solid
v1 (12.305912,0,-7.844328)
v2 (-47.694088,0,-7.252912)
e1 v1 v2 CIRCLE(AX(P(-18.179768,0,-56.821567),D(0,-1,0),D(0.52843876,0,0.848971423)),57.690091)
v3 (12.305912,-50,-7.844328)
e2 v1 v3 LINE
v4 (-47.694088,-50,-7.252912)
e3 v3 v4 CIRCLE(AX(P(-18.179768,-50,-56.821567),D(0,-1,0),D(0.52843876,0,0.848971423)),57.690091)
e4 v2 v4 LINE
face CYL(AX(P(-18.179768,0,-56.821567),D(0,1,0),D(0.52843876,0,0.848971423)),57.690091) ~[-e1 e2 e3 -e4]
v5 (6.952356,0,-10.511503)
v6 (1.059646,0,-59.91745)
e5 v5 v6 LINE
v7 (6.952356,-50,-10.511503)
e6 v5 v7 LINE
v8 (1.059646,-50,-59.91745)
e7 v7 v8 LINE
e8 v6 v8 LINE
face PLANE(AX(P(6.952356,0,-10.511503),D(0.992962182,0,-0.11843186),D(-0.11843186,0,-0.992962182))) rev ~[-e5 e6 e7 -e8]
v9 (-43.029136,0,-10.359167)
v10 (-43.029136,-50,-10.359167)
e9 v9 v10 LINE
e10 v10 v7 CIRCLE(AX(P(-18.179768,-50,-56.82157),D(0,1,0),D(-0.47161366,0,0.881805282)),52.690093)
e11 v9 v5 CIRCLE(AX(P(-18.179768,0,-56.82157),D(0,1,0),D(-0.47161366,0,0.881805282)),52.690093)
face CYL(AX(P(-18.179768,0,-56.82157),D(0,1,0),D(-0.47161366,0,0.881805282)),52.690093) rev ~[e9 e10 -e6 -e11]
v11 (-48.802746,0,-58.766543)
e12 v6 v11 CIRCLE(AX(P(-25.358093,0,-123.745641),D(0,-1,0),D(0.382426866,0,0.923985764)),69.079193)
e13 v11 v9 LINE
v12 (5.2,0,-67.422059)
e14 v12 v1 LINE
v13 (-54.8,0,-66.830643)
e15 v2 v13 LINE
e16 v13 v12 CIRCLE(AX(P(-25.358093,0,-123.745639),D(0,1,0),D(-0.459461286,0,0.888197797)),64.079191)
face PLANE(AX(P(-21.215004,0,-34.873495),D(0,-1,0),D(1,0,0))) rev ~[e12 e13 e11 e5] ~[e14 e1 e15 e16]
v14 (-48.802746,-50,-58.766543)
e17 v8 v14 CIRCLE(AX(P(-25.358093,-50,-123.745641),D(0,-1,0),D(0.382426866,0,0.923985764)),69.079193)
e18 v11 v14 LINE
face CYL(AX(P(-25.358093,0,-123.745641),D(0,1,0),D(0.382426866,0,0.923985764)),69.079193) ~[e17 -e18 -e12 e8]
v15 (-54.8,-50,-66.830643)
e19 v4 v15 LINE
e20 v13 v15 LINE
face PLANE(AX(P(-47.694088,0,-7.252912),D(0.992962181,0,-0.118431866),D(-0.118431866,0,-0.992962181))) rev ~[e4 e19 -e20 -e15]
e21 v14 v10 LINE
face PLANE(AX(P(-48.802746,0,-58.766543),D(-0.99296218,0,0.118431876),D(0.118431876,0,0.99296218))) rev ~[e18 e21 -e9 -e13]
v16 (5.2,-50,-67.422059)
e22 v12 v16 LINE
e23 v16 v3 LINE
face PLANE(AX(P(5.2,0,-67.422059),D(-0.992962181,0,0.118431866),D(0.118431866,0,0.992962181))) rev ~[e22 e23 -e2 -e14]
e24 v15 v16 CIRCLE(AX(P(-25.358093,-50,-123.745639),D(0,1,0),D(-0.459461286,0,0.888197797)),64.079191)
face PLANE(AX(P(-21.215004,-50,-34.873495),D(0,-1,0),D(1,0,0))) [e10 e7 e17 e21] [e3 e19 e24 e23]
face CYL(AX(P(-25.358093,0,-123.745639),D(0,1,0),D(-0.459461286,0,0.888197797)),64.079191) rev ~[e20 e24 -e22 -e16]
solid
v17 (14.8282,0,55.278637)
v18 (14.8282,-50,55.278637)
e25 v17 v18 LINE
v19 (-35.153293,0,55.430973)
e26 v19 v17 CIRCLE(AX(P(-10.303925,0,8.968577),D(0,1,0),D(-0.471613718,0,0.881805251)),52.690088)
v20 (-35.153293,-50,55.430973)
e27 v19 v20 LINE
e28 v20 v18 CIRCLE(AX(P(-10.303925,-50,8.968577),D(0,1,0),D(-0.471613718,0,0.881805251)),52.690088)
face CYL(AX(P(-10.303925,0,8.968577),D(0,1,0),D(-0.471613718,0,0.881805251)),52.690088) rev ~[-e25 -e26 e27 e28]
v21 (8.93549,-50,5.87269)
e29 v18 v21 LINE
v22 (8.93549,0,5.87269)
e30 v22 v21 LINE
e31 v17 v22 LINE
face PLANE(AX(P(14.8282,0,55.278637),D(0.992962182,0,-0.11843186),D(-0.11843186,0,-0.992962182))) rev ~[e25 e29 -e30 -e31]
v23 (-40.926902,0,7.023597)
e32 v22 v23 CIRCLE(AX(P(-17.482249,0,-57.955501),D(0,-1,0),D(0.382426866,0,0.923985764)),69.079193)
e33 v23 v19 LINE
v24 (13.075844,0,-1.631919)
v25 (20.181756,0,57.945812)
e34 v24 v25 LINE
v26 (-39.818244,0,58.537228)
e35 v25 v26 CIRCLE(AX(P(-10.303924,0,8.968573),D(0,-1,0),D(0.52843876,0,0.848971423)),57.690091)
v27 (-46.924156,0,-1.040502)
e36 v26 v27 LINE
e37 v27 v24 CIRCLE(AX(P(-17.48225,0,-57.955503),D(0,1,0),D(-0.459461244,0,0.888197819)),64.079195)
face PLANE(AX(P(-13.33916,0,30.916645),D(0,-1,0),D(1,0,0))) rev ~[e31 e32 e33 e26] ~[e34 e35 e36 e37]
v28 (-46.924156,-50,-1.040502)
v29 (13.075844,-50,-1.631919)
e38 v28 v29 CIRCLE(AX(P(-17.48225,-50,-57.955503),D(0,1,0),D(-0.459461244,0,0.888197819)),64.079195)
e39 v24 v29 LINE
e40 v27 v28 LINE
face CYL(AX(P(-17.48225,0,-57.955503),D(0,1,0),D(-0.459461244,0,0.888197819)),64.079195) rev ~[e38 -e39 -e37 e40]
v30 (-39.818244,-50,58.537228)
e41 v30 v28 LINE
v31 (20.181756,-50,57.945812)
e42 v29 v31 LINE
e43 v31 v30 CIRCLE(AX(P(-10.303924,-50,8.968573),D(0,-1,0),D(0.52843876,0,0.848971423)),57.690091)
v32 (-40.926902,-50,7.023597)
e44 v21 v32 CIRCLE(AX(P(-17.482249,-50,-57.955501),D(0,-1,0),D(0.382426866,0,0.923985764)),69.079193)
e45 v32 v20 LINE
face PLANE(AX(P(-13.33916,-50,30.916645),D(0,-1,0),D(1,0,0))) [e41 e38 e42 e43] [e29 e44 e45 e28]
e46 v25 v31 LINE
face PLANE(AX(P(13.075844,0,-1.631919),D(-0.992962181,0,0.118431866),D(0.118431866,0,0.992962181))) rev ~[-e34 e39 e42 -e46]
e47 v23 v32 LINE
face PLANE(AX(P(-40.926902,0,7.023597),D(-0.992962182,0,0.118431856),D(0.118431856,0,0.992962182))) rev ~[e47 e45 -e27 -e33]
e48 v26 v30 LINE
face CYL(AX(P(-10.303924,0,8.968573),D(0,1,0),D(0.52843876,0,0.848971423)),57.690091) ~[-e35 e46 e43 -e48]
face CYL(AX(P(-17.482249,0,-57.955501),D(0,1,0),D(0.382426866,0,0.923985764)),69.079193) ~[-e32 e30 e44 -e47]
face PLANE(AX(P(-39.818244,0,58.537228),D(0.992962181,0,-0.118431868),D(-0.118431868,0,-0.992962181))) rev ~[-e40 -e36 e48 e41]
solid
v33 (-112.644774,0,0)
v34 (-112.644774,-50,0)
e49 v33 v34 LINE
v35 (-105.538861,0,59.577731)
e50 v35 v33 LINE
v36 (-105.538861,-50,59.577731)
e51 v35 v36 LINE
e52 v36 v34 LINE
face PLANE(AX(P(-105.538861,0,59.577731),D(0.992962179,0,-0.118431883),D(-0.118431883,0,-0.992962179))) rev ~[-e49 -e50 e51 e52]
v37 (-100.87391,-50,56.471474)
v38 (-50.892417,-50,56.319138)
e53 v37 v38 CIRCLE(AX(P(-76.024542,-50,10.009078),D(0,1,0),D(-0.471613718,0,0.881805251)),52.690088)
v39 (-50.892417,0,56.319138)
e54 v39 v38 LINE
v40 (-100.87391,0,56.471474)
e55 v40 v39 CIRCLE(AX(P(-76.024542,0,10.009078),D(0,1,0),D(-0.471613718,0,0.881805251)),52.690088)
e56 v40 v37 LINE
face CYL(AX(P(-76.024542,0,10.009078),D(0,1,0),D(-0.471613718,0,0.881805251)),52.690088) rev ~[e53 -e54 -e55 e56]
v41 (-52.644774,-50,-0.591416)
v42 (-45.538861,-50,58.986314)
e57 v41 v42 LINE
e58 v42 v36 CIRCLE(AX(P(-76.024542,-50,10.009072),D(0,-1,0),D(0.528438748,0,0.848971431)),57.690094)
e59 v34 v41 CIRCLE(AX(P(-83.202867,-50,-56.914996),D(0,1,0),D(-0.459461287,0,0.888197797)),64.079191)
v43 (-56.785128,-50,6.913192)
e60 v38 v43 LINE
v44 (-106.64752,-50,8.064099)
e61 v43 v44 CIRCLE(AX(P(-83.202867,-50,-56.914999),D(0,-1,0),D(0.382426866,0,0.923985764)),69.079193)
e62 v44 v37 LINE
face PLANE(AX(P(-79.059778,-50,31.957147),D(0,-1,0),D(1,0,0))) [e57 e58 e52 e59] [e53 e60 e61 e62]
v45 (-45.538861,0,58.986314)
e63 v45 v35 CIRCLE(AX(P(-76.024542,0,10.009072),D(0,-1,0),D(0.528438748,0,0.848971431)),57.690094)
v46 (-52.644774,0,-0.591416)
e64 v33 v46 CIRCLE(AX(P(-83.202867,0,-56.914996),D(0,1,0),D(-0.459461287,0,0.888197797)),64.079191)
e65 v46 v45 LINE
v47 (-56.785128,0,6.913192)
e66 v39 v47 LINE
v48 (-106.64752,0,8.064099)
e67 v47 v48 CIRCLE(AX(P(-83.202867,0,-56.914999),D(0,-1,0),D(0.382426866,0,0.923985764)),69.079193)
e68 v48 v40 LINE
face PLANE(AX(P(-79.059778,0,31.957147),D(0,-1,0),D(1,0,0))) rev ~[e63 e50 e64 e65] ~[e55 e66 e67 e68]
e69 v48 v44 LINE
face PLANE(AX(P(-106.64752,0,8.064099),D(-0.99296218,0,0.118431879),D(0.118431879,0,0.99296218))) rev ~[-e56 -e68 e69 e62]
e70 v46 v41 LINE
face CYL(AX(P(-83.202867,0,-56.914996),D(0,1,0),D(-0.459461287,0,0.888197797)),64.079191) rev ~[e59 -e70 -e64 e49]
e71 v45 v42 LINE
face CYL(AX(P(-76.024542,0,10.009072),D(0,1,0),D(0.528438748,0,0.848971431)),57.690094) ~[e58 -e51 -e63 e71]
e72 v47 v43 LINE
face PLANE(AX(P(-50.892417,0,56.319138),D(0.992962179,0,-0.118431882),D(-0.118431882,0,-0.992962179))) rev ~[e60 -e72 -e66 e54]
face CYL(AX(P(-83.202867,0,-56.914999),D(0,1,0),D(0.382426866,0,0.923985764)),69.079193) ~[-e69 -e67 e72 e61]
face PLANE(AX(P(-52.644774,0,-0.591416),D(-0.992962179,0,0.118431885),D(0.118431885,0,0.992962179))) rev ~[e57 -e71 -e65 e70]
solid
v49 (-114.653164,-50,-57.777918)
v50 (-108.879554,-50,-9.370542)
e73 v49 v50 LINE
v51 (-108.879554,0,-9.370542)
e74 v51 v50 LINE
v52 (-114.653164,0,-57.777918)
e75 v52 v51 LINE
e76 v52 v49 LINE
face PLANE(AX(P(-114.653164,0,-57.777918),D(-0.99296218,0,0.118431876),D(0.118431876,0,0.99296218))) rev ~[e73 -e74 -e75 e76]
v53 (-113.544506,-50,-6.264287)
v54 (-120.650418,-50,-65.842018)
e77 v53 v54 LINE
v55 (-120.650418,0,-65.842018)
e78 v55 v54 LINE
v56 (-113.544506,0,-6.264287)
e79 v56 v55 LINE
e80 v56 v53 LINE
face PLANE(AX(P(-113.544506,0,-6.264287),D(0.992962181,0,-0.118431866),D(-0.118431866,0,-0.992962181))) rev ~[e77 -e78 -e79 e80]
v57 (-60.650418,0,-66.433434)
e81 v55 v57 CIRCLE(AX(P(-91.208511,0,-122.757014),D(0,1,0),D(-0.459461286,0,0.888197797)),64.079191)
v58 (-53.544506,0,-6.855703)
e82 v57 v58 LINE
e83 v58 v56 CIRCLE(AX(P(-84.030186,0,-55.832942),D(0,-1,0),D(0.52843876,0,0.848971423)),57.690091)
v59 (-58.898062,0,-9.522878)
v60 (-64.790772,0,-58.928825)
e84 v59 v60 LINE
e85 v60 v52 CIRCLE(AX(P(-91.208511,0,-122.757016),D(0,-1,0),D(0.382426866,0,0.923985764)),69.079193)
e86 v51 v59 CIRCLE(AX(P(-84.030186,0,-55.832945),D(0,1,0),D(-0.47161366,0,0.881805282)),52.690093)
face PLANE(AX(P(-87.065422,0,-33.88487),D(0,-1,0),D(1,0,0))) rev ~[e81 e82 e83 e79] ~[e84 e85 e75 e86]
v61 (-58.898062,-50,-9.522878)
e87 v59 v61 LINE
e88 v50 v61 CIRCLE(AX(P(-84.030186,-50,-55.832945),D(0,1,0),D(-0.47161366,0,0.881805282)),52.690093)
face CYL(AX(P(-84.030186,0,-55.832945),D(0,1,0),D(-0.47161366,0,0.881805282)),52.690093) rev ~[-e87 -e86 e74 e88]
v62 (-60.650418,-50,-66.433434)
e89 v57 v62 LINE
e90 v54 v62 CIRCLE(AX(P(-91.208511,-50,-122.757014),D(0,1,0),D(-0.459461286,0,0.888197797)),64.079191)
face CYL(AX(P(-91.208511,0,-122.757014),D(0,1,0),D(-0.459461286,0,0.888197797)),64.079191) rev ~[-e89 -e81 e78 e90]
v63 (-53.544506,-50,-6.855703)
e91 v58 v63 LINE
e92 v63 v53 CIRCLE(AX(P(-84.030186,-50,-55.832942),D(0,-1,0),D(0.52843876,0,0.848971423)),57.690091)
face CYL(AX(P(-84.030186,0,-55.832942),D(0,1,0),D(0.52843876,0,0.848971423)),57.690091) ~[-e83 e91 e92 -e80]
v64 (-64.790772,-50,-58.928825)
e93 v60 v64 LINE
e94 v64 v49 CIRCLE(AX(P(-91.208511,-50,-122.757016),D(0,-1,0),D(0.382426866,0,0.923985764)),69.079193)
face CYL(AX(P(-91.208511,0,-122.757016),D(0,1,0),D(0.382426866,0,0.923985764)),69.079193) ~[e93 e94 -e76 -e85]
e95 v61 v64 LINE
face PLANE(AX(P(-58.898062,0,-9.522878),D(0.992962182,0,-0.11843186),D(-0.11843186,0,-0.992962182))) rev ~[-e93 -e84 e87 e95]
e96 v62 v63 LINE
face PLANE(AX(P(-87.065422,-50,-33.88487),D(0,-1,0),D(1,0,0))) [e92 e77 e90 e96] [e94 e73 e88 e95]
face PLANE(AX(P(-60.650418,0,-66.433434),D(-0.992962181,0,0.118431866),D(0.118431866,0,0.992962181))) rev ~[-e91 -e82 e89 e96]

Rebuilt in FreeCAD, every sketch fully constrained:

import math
import FreeCAD as App
import Part
import Sketcher
from FreeCAD import Vector

doc = App.newDocument("Part")
body = doc.addObject("PartDesign::Body", "Body")
body.AllowCompound = True

# Sketch on XZ plane
sketch1 = body.newObject("Sketcher::SketchObject", "Sketch")
sketch1.AttachmentSupport = (doc.getObject("XZ_Plane"), [""])
sketch1.MapMode = "FlatFace"
sketch1.addGeometry([
    Part.LineSegment(Vector(-105.538861, 59.577731, 0), Vector(-112.644774, 0, 0)),  # 0
    Part.ArcOfCircle(Part.Circle(Vector(-83.202867, -56.914996, 0), Vector(0, 0, 1), 64.079191), math.radians(61.518164), math.radians(117.352351)),  # 1
    Part.LineSegment(Vector(-52.644774, -0.591416, 0), Vector(-45.538861, 58.986314, 0)),  # 2
    Part.ArcOfCircle(Part.Circle(Vector(-76.024542, 10.009072, 0), Vector(0, 0, 1), 57.690094), math.radians(58.099972), math.radians(120.770541)),  # 3
    Part.LineSegment(Vector(-106.64752, 8.064099, 0), Vector(-100.87391, 56.471474, 0)),  # 4
    Part.ArcOfCircle(Part.Circle(Vector(-76.024542, 10.009078, 0), Vector(0, 0, 1), 52.690088), math.radians(61.511646), math.radians(118.139098)),  # 5
    Part.LineSegment(Vector(-50.892417, 56.319138, 0), Vector(-56.785128, 6.913192, 0)),  # 6
    Part.ArcOfCircle(Part.Circle(Vector(-83.202867, -56.914999, 0), Vector(0, 0, 1), 69.079193), math.radians(67.51591), math.radians(109.839595)),  # 7
    Part.LineSegment(Vector(-39.818244, 58.537228, 0), Vector(-46.924156, -1.040502, 0)),  # 8
    Part.ArcOfCircle(Part.Circle(Vector(-17.48225, -57.955503, 0), Vector(0, 0, 1), 64.079195), math.radians(61.518165), math.radians(117.352348)),  # 9
    Part.LineSegment(Vector(13.075844, -1.631919, 0), Vector(20.181756, 57.945812, 0)),  # 10
    Part.ArcOfCircle(Part.Circle(Vector(-10.303924, 8.968573, 0), Vector(0, 0, 1), 57.690091), math.radians(58.099971), math.radians(120.770544)),  # 11
    Part.LineSegment(Vector(-40.926902, 7.023597, 0), Vector(-35.153293, 55.430973, 0)),  # 12
    Part.ArcOfCircle(Part.Circle(Vector(-10.303925, 8.968577, 0), Vector(0, 0, 1), 52.690088), math.radians(61.511646), math.radians(118.139098)),  # 13
    Part.LineSegment(Vector(14.8282, 55.278637, 0), Vector(8.93549, 5.87269, 0)),  # 14
    Part.ArcOfCircle(Part.Circle(Vector(-17.482249, -57.955501, 0), Vector(0, 0, 1), 69.079193), math.radians(67.51591), math.radians(109.839595)),  # 15
    Part.LineSegment(Vector(-47.694088, -7.252912, 0), Vector(-54.8, -66.830643, 0)),  # 16
    Part.ArcOfCircle(Part.Circle(Vector(-25.358093, -123.745639, 0), Vector(0, 0, 1), 64.079191), math.radians(61.518164), math.radians(117.352351)),  # 17
    Part.LineSegment(Vector(5.2, -67.422059, 0), Vector(12.305912, -7.844328, 0)),  # 18
    Part.ArcOfCircle(Part.Circle(Vector(-18.179768, -56.821567, 0), Vector(0, 0, 1), 57.690091), math.radians(58.099971), math.radians(120.770544)),  # 19
    Part.LineSegment(Vector(-48.802746, -58.766543, 0), Vector(-43.029136, -10.359167, 0)),  # 20
    Part.ArcOfCircle(Part.Circle(Vector(-18.179768, -56.82157, 0), Vector(0, 0, 1), 52.690093), math.radians(61.51165), math.radians(118.139094)),  # 21
    Part.LineSegment(Vector(6.952356, -10.511503, 0), Vector(1.059646, -59.91745, 0)),  # 22
    Part.ArcOfCircle(Part.Circle(Vector(-25.358093, -123.745641, 0), Vector(0, 0, 1), 69.079193), math.radians(67.51591), math.radians(109.839595)),  # 23
    Part.LineSegment(Vector(-113.544506, -6.264287, 0), Vector(-120.650418, -65.842018, 0)),  # 24
    Part.ArcOfCircle(Part.Circle(Vector(-91.208511, -122.757014, 0), Vector(0, 0, 1), 64.079191), math.radians(61.518164), math.radians(117.352351)),  # 25
    Part.LineSegment(Vector(-60.650418, -66.433434, 0), Vector(-53.544506, -6.855703, 0)),  # 26
    Part.ArcOfCircle(Part.Circle(Vector(-84.030186, -55.832942, 0), Vector(0, 0, 1), 57.690091), math.radians(58.099971), math.radians(120.770544)),  # 27
    Part.LineSegment(Vector(-114.653164, -57.777918, 0), Vector(-108.879554, -9.370542, 0)),  # 28
    Part.ArcOfCircle(Part.Circle(Vector(-84.030186, -55.832945, 0), Vector(0, 0, 1), 52.690093), math.radians(61.51165), math.radians(118.139094)),  # 29
    Part.LineSegment(Vector(-58.898062, -9.522878, 0), Vector(-64.790772, -58.928825, 0)),  # 30
    Part.ArcOfCircle(Part.Circle(Vector(-91.208511, -122.757016, 0), Vector(0, 0, 1), 69.079193), math.radians(67.51591), math.radians(109.839595)),  # 31
], False)
sketch1.addConstraint([
    Sketcher.Constraint("Coincident", 0, 2, 1, 2),
    Sketcher.Constraint("Coincident", 1, 1, 2, 1),
    Sketcher.Constraint("Coincident", 2, 2, 3, 1),
    Sketcher.Constraint("Coincident", 3, 2, 0, 1),
    Sketcher.Constraint("Coincident", 4, 2, 5, 2),
    Sketcher.Constraint("Coincident", 5, 1, 6, 1),
    Sketcher.Constraint("Coincident", 6, 2, 7, 1),
    Sketcher.Constraint("Coincident", 7, 2, 4, 1),
    Sketcher.Constraint("Coincident", 8, 2, 9, 2),
    Sketcher.Constraint("Coincident", 9, 1, 10, 1),
    Sketcher.Constraint("Coincident", 10, 2, 11, 1),
    Sketcher.Constraint("Coincident", 11, 2, 8, 1),
    Sketcher.Constraint("Coincident", 12, 2, 13, 2),
    Sketcher.Constraint("Coincident", 13, 1, 14, 1),
    Sketcher.Constraint("Coincident", 14, 2, 15, 1),
    Sketcher.Constraint("Coincident", 15, 2, 12, 1),
    Sketcher.Constraint("Coincident", 16, 2, 17, 2),
    Sketcher.Constraint("Coincident", 17, 1, 18, 1),
    Sketcher.Constraint("Coincident", 18, 2, 19, 1),
    Sketcher.Constraint("Coincident", 19, 2, 16, 1),
    Sketcher.Constraint("Coincident", 20, 2, 21, 2),
    Sketcher.Constraint("Coincident", 21, 1, 22, 1),
    Sketcher.Constraint("Coincident", 22, 2, 23, 1),
    Sketcher.Constraint("Coincident", 23, 2, 20, 1),
    Sketcher.Constraint("Coincident", 24, 2, 25, 2),
    Sketcher.Constraint("Coincident", 25, 1, 26, 1),
    Sketcher.Constraint("Coincident", 26, 2, 27, 1),
    Sketcher.Constraint("Coincident", 27, 2, 24, 1),
    Sketcher.Constraint("Coincident", 28, 2, 29, 2),
    Sketcher.Constraint("Coincident", 29, 1, 30, 1),
    Sketcher.Constraint("Coincident", 30, 2, 31, 1),
    Sketcher.Constraint("Coincident", 31, 2, 28, 1),
    Sketcher.Constraint("Coincident", 5, 3, 3, 3),
    Sketcher.Constraint("Coincident", 7, 3, 1, 3),
    Sketcher.Constraint("Coincident", 13, 3, 11, 3),
    Sketcher.Constraint("Coincident", 15, 3, 9, 3),
    Sketcher.Constraint("Coincident", 21, 3, 19, 3),
    Sketcher.Constraint("Coincident", 23, 3, 17, 3),
    Sketcher.Constraint("Coincident", 29, 3, 27, 3),
    Sketcher.Constraint("Coincident", 31, 3, 25, 3),
    Sketcher.Constraint("PointOnObject", 0, 2, -1),
    Sketcher.Constraint("Distance", 0, 60.0),
    Sketcher.Constraint("Distance", 2, 59.999999),
    Sketcher.Constraint("Distance", 8, 59.999999),
    Sketcher.Constraint("Distance", 10, 60.0),
    Sketcher.Constraint("Distance", 16, 60.0),
    Sketcher.Constraint("Distance", 18, 60.0),
    Sketcher.Constraint("Distance", 24, 60.0),
    Sketcher.Constraint("Distance", 26, 60.0),
    Sketcher.Constraint("DistanceX", 0, 2, 1, 1, 60.0),
    Sketcher.Constraint("DistanceX", 3, 2, 2, 2, 60.0),
    Sketcher.Constraint("DistanceX", 8, 2, 9, 1, 60.0),
    Sketcher.Constraint("DistanceX", 16, 2, 17, 1, 60.0),
    Sketcher.Constraint("DistanceX", 16, 2, -1, 1, 54.8),
    Sketcher.Constraint("Radius", 1, 64.079191),
    Sketcher.Constraint("Radius", 11, 57.690091),
    Sketcher.Constraint("Radius", 17, 64.079191),
    Sketcher.Constraint("Radius", 19, 57.690091),
    Sketcher.Constraint("Radius", 25, 64.079191),
    Sketcher.Constraint("Radius", 27, 57.690091),
    Sketcher.Constraint("DistanceY", 7, 3, -1, 1, 56.914999),
    Sketcher.Constraint("Radius", 3, 57.690094),
    Sketcher.Constraint("Radius", 5, 52.690088),
    Sketcher.Constraint("Radius", 7, 69.079193),
    Sketcher.Constraint("Radius", 9, 64.079195),
    Sketcher.Constraint("Radius", 13, 52.690088),
    Sketcher.Constraint("Radius", 15, 69.079193),
    Sketcher.Constraint("Radius", 21, 52.690093),
    Sketcher.Constraint("Radius", 23, 69.079193),
    Sketcher.Constraint("Radius", 29, 52.690093),
    Sketcher.Constraint("Radius", 31, 69.079193),
    Sketcher.Constraint("DistanceY", 15, 3, -1, 1, 57.955501),
    Sketcher.Constraint("DistanceY", -1, 1, 7, 2, 8.064099),
    Sketcher.Constraint("DistanceX", -1, 1, 13, 1, 14.8282),
    Sketcher.Constraint("DistanceY", 11, 3, 3, 3, 1.040499),
    Sketcher.Constraint("DistanceX", 1, 3, 19, 3, 65.023098),
    Sketcher.Constraint("DistanceY", 3, 3, 4, 2, 46.462402),
    Sketcher.Constraint("DistanceY", 11, 3, 12, 2, 46.4624),
    Sketcher.Constraint("DistanceY", 8, 2, 15, 2, 8.064099),
    Sketcher.Constraint("DistanceY", 16, 2, 29, 3, 10.997698),
    Sketcher.Constraint("DistanceY", 18, 2, 11, 3, 16.812901),
    Sketcher.Constraint("DistanceY", 16, 2, 23, 2, 8.0641),
    Sketcher.Constraint("DistanceY", 26, 2, 8, 2, 5.815201),
    Sketcher.Constraint("DistanceY", 24, 2, 31, 2, 8.0641),
    Sketcher.Constraint("Distance", 6, 49.756121),
    Sketcher.Constraint("Distance", 14, 49.756122),
    Sketcher.Constraint("Distance", 22, 49.756122),
    Sketcher.Constraint("Distance", 30, 49.756122),
    Sketcher.Constraint("DistanceX", 5, 3, -1, 1, 76.024542),
    Sketcher.Constraint("DistanceX", 9, 3, -1, 1, 17.48225),
    Sketcher.Constraint("DistanceY", 17, 3, -1, 1, 123.745639),
    Sketcher.Constraint("DistanceX", 19, 3, -1, 1, 18.179768),
    Sketcher.Constraint("DistanceY", 21, 3, -1, 1, 56.82157),
    Sketcher.Constraint("DistanceX", 25, 3, -1, 1, 91.208511),
    Sketcher.Constraint("DistanceY", -1, 1, 5, 1, 56.319138),
    Sketcher.Constraint("DistanceY", 9, 1, -1, 1, 1.631919),
    Sketcher.Constraint("DistanceY", -1, 1, 10, 2, 57.945812),
    Sketcher.Constraint("DistanceY", 22, 2, -1, 1, 59.91745),
    Sketcher.Constraint("DistanceX", 24, 2, -1, 1, 120.650418),
    Sketcher.Constraint("DistanceX", 29, 1, -1, 1, 58.898062),
    Sketcher.Constraint("DistanceY", 25, 3, 1, 3, 65.842018),
    Sketcher.Constraint("DistanceX", 27, 3, 1, 3, 0.82732),
    Sketcher.Constraint("DistanceX", 19, 2, 20, 2, 4.664952),
    Sketcher.Constraint("DistanceX", 27, 2, 28, 2, 4.664952),
])
pad1 = body.newObject("PartDesign::Pad", "Pad")
pad1.Profile = sketch1
pad1.Length = 50

doc.recompute()
